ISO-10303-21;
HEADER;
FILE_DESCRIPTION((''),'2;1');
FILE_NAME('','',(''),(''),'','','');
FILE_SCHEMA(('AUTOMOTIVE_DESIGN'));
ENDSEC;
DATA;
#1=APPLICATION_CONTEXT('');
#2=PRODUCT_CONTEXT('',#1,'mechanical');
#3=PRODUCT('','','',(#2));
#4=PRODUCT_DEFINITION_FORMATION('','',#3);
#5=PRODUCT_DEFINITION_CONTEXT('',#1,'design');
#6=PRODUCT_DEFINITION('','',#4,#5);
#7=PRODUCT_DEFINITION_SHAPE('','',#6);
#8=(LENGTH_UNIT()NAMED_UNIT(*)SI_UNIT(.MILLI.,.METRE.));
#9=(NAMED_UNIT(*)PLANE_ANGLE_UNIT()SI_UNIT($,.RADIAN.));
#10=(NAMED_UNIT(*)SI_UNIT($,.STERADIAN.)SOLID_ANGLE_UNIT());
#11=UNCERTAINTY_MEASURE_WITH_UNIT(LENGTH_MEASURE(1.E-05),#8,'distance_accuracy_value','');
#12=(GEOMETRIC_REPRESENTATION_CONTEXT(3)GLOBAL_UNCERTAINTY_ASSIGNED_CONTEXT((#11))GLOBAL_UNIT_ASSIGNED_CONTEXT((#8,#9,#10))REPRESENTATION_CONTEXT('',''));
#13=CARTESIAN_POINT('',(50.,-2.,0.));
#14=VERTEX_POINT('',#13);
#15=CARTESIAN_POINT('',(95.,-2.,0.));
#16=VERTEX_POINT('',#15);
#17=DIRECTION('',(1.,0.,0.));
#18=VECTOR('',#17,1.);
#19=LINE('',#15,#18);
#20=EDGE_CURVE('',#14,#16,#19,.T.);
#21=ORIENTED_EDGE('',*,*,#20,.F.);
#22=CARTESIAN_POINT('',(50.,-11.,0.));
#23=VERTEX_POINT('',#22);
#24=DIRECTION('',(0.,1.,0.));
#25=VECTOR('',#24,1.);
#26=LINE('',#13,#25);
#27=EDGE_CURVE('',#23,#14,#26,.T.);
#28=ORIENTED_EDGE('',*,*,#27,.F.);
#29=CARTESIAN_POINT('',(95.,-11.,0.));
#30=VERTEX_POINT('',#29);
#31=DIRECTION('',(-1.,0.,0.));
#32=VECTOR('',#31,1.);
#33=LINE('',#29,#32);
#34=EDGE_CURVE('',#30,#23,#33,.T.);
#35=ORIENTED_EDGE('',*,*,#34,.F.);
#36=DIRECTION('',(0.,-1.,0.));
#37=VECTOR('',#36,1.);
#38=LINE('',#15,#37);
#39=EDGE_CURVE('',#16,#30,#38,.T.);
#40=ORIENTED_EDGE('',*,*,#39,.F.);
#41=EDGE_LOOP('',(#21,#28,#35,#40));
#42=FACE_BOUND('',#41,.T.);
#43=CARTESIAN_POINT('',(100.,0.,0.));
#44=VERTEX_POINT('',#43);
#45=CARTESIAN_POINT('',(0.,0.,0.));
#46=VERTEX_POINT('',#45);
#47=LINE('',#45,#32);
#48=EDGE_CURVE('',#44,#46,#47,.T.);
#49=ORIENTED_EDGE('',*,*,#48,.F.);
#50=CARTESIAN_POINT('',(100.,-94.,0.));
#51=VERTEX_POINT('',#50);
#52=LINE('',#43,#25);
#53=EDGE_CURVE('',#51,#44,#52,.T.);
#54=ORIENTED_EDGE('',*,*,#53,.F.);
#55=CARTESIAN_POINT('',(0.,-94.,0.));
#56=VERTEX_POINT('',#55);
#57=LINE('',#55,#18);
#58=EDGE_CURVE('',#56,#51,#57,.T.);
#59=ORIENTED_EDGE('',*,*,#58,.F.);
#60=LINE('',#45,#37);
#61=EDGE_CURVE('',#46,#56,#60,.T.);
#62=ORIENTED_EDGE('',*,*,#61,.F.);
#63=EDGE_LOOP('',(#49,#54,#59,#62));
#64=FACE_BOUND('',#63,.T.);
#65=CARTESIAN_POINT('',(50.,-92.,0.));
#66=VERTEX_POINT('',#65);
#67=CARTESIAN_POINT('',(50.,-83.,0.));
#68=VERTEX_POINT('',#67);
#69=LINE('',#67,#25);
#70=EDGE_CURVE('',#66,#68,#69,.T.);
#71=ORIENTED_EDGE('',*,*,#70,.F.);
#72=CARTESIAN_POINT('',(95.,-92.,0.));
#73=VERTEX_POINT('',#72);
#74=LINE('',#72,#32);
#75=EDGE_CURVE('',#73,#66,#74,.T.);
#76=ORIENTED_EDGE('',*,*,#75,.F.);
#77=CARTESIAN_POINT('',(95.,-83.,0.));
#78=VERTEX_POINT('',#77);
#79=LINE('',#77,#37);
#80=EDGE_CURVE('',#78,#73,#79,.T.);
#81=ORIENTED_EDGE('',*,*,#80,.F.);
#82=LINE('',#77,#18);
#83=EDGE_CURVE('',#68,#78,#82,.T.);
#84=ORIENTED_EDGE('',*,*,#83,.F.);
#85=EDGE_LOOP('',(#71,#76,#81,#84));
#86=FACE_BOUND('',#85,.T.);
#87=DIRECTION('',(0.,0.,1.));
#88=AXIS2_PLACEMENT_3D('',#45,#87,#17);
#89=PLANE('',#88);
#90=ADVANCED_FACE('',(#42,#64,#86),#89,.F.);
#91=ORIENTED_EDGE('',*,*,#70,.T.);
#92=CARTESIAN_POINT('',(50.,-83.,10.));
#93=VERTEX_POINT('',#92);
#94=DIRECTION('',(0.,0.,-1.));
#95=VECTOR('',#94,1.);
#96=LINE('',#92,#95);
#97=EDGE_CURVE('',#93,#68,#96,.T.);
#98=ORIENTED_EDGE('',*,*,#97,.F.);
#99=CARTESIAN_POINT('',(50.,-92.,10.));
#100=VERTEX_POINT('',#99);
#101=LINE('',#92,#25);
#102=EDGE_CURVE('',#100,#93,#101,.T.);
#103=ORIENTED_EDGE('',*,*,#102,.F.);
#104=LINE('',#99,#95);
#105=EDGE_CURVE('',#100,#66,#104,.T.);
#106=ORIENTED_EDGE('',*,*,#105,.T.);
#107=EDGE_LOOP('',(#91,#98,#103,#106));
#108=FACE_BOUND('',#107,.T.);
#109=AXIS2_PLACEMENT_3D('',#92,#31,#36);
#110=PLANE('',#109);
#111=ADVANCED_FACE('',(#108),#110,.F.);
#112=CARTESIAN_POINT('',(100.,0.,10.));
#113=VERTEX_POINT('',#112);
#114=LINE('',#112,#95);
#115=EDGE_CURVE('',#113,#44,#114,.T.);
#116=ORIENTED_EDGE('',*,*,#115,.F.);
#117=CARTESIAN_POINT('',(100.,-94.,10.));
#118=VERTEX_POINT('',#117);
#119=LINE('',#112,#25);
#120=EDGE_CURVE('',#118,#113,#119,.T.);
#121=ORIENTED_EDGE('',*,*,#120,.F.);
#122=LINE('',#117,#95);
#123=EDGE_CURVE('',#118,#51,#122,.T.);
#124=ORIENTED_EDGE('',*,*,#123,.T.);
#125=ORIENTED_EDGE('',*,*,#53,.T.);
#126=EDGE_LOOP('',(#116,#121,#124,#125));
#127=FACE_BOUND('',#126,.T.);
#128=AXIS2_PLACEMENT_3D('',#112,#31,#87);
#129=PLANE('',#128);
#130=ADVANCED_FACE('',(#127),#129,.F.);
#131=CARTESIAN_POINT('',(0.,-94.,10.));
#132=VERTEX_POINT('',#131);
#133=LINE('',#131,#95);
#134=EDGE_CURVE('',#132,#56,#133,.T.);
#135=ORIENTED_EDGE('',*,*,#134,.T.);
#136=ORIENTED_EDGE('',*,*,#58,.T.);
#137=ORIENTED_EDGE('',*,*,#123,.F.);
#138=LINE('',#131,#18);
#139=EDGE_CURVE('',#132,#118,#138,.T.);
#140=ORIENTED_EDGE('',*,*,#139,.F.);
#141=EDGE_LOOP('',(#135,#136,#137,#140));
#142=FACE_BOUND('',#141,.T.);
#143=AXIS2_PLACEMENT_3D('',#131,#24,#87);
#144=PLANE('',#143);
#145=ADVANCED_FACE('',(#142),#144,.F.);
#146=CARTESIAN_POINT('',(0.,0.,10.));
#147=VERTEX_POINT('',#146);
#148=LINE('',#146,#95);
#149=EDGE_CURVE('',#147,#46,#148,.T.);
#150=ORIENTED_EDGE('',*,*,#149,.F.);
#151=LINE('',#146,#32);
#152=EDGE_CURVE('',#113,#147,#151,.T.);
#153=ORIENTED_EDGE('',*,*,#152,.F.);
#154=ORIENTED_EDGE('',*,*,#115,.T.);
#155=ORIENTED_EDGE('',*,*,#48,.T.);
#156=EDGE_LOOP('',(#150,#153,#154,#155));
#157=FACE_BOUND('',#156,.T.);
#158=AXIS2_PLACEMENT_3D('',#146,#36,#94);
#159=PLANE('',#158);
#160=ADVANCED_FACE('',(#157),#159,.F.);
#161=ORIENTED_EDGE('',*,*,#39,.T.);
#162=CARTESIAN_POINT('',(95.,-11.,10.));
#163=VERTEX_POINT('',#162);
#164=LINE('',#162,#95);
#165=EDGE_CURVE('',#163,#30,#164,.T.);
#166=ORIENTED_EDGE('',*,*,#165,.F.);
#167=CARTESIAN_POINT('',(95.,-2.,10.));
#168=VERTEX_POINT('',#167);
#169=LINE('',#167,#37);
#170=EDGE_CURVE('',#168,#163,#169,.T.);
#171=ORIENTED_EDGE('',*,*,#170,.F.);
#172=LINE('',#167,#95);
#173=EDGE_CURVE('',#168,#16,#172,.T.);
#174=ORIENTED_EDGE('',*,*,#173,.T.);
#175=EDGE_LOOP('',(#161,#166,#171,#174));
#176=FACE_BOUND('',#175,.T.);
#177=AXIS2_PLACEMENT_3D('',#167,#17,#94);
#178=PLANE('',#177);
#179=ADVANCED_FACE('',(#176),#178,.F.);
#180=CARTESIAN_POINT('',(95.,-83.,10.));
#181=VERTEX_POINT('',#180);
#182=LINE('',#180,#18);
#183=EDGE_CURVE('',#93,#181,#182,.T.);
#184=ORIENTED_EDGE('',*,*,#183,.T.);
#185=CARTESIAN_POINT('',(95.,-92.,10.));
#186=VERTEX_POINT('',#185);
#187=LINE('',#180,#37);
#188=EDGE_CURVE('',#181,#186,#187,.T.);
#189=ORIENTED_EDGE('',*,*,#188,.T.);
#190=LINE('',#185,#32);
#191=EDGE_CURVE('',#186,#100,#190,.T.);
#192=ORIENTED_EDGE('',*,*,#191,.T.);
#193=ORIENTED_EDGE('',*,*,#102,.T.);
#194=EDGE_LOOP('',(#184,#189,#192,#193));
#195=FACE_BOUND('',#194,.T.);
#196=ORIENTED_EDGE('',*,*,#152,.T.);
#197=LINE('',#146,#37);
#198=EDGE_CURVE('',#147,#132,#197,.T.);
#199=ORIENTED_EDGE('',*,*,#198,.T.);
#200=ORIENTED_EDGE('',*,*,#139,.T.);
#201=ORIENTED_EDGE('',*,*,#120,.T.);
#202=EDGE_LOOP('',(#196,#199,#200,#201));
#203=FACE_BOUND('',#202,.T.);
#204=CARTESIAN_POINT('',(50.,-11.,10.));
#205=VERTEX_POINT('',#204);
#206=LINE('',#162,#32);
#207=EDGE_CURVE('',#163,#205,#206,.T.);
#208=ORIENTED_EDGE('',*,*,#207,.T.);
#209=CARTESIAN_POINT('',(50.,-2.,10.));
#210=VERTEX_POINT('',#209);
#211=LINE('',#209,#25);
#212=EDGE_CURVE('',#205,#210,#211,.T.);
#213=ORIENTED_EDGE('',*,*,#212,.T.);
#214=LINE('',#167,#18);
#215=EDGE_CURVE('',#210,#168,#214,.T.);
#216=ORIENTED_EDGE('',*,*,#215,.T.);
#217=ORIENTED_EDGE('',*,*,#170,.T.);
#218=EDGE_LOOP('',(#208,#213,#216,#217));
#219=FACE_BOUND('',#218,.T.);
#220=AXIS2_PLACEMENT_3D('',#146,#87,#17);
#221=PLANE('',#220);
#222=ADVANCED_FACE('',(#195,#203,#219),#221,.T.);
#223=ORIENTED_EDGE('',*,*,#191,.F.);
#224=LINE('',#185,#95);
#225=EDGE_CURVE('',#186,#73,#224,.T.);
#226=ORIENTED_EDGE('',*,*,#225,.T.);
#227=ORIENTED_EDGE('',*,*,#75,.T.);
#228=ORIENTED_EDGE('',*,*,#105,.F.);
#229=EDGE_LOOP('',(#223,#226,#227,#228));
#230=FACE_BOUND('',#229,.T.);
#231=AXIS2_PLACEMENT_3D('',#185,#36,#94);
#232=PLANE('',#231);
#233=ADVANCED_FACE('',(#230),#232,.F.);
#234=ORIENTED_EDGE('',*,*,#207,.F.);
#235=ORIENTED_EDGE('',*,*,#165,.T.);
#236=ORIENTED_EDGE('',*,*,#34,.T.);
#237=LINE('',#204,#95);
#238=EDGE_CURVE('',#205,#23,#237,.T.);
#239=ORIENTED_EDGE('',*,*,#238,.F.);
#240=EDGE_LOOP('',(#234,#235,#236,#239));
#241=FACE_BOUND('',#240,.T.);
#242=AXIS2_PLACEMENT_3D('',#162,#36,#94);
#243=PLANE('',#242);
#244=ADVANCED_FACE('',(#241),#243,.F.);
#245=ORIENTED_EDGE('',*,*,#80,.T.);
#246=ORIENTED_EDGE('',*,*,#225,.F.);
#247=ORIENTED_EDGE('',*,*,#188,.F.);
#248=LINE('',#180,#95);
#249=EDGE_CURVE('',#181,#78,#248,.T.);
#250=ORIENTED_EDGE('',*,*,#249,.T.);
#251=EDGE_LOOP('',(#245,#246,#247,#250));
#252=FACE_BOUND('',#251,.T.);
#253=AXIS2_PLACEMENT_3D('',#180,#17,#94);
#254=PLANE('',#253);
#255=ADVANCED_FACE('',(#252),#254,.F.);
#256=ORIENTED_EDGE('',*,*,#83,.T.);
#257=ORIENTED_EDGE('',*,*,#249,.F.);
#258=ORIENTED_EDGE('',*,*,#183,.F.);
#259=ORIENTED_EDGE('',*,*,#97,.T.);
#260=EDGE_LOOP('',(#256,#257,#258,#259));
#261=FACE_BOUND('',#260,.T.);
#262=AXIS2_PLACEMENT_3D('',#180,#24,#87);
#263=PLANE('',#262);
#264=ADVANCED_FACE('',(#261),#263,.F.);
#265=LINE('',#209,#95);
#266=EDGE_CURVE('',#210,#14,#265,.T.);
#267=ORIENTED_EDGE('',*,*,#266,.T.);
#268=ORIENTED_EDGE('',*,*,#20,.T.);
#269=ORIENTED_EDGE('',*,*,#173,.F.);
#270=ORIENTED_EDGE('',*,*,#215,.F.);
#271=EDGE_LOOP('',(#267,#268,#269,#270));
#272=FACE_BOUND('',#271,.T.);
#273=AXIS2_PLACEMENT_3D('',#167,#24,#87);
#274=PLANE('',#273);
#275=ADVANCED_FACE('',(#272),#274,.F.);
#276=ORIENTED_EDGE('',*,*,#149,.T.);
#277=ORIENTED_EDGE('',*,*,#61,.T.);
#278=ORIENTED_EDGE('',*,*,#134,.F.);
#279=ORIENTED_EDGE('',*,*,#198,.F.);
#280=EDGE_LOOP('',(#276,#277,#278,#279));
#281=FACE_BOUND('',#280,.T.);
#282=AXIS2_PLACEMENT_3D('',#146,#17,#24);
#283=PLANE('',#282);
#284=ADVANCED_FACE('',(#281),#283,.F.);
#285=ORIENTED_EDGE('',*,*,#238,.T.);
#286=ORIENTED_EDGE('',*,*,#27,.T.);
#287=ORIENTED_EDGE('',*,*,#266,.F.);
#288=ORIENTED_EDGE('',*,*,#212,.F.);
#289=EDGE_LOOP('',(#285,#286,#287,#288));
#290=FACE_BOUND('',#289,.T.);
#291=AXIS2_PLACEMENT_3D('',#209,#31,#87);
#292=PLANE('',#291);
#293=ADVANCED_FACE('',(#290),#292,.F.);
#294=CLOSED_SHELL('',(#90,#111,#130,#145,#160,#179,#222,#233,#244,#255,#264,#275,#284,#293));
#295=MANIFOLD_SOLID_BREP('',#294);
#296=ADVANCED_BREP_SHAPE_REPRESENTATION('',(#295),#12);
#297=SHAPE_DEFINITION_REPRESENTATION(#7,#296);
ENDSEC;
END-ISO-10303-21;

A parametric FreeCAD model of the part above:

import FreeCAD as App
import Part
import Sketcher

doc = App.newDocument("Part")
body = doc.addObject("PartDesign::Body", "Body")

# Sketch on XY plane
sketch1 = body.newObject("Sketcher::SketchObject", "Sketch")
sketch1.AttachmentSupport = (doc.getObject("XY_Plane"), [""])
sketch1.MapMode = "FlatFace"
sketch1.addGeometry([
    Part.LineSegment(App.Vector(0, 0, 0), App.Vector(0, -94, 0)),
    Part.LineSegment(App.Vector(0, -94, 0), App.Vector(100, -94, 0)),
    Part.LineSegment(App.Vector(100, -94, 0), App.Vector(100, 0, 0)),
    Part.LineSegment(App.Vector(100, 0, 0), App.Vector(0, 0, 0)),
], False)
sketch1.addConstraint([
    Sketcher.Constraint("Coincident", 0, 2, 1, 1),
    Sketcher.Constraint("Coincident", 1, 2, 2, 1),
    Sketcher.Constraint("Coincident", 2, 2, 3, 1),
    Sketcher.Constraint("Coincident", 3, 2, 0, 1),
    Sketcher.Constraint("Vertical", 0),
    Sketcher.Constraint("Horizontal", 1),
    Sketcher.Constraint("Vertical", 2),
    Sketcher.Constraint("Horizontal", 3),
    Sketcher.Constraint("Coincident", 3, 2, -1, 1),
    Sketcher.Constraint("DistanceX", 1, 1, 1, 2, 100.0),
    Sketcher.Constraint("DistanceY", 0, 2, 0, 1, 94.0),
])
pad1 = body.newObject("PartDesign::Pad", "Pad")
pad1.Profile = sketch1
pad1.Length = 10

# Sketch on XY plane
sketch2 = body.newObject("Sketcher::SketchObject", "Sketch001")
sketch2.AttachmentSupport = (doc.getObject("XY_Plane"), [""])
sketch2.MapMode = "FlatFace"
sketch2.addGeometry([
    Part.LineSegment(App.Vector(95, -83, 0), App.Vector(95, -92, 0)),  # 0
    Part.LineSegment(App.Vector(95, -92, 0), App.Vector(50, -92, 0)),  # 1
    Part.LineSegment(App.Vector(50, -92, 0), App.Vector(50, -83, 0)),  # 2
    Part.LineSegment(App.Vector(50, -83, 0), App.Vector(95, -83, 0)),  # 3
    Part.LineSegment(App.Vector(95, -2, 0), App.Vector(95, -11, 0)),  # 4
    Part.LineSegment(App.Vector(95, -11, 0), App.Vector(50, -11, 0)),  # 5
    Part.LineSegment(App.Vector(50, -11, 0), App.Vector(50, -2, 0)),  # 6
    Part.LineSegment(App.Vector(50, -2, 0), App.Vector(95, -2, 0)),  # 7
], False)
sketch2.addConstraint([
    Sketcher.Constraint("Coincident", 0, 2, 1, 1),
    Sketcher.Constraint("Coincident", 1, 2, 2, 1),
    Sketcher.Constraint("Coincident", 2, 2, 3, 1),
    Sketcher.Constraint("Coincident", 3, 2, 0, 1),
    Sketcher.Constraint("Coincident", 4, 2, 5, 1),
    Sketcher.Constraint("Coincident", 5, 2, 6, 1),
    Sketcher.Constraint("Coincident", 6, 2, 7, 1),
    Sketcher.Constraint("Coincident", 7, 2, 4, 1),
    Sketcher.Constraint("Vertical", 0),
    Sketcher.Constraint("Horizontal", 1),
    Sketcher.Constraint("Vertical", 2),
    Sketcher.Constraint("Horizontal", 3),
    Sketcher.Constraint("Vertical", 4),
    Sketcher.Constraint("Horizontal", 5),
    Sketcher.Constraint("Vertical", 6),
    Sketcher.Constraint("Horizontal", 7),
    Sketcher.Constraint("Vertical", 3, 2, 4, 2),
    Sketcher.Constraint("Vertical", 2, 2, 5, 2),
    Sketcher.Constraint("Equal", 2, 4),
    Sketcher.Constraint("DistanceX", 1, 2, 1, 1, 45.0),
    Sketcher.Constraint("DistanceY", 0, 2, 0, 1, 9.0),
    Sketcher.Constraint("DistanceX", -1, 1, 0, 2, 95.0),
    Sketcher.Constraint("DistanceY", 0, 2, -1, 1, 92.0),
    Sketcher.Constraint("DistanceY", 4, 2, -1, 1, 11.0),
])
pocket1 = body.newObject("PartDesign::Pocket", "Pocket")
pocket1.Profile = sketch2
pocket1.Length = 10
pocket1.Reversed = True

doc.recompute()
